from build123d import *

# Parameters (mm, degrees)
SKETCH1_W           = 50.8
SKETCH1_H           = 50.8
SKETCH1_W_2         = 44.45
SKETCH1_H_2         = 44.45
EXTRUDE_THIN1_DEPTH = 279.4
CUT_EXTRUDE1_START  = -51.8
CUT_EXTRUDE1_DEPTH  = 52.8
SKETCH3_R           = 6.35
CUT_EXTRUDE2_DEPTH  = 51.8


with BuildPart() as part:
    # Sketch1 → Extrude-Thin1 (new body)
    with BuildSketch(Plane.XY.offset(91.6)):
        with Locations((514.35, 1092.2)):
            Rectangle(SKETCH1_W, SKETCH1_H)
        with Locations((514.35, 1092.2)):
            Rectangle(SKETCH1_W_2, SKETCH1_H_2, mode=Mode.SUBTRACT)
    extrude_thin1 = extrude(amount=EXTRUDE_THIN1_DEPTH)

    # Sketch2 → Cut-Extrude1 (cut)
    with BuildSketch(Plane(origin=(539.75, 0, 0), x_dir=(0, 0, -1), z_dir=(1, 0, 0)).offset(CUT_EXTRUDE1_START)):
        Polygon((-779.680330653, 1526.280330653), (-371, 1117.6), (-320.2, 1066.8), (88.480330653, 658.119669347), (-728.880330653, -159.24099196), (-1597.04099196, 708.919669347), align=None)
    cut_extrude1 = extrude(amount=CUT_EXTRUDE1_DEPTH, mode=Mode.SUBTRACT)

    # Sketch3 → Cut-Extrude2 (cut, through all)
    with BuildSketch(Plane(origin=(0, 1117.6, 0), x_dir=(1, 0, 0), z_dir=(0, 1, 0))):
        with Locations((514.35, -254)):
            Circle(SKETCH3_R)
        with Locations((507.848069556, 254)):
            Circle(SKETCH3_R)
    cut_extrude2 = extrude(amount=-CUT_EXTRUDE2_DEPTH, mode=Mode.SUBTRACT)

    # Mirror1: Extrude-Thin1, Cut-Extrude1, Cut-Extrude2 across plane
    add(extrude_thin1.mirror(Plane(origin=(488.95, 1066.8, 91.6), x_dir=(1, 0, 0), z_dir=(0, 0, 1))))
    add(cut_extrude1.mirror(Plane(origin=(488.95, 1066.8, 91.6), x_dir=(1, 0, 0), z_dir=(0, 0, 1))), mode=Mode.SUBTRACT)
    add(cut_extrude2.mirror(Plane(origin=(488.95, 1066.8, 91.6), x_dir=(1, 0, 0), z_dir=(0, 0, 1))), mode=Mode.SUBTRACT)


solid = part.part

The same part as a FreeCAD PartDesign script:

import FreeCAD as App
import Part
import Sketcher

V = App.Vector
Q = App.Units.Quantity


def add_polygon(sketch, points):
    """Adds a closed chain of lines whose ends are joined by coincident constraints."""
    first, n = sketch.GeometryCount, len(points)
    for a, b in zip(points, points[1:] + points[:1]):
        sketch.addGeometry(Part.LineSegment(App.Vector(*a, 0), App.Vector(*b, 0)), False)
    for i in range(n):
        sketch.addConstraint(Sketcher.Constraint("Coincident", first + i, 2, first + (i + 1) % n, 1))

doc = App.newDocument("Part")
params = doc.addObject("Spreadsheet::Sheet", "Params")
for row, (alias, value) in enumerate([
    ("sketch1_width", "2 in"),
    ("sketch1_width2", "1.75 in"),
    ("pad1_length", "11 in"),
    ("pocket1_length", "52.8 mm"),
    ("sketch3_diameter", "0.5 in"),
], start=1):
    params.set(f"A{row}", alias)
    params.set(f"B{row}", "=" + value)
    params.setAlias(f"B{row}", alias)

body = doc.addObject("PartDesign::Body", "Body")

# Sketch on XY plane
sketch1 = body.newObject("Sketcher::SketchObject", "Sketch")
sketch1.AttachmentSupport = (doc.getObject("XY_Plane"), [""])
sketch1.MapMode = "FlatFace"
sketch1.AttachmentOffset = App.Placement(V(0, 0, 91.6), App.Rotation())
add_polygon(sketch1, [(489, 1118), (489, 1067), (540, 1067), (540, 1118)])  # lines 0-3
add_polygon(sketch1, [(537, 1070), (492, 1070), (492, 1114), (537, 1114)])  # lines 4-7
sketch1.addConstraint([
    Sketcher.Constraint("Vertical", 0),
    Sketcher.Constraint("Horizontal", 1),
    Sketcher.Constraint("Vertical", 2),
    Sketcher.Constraint("Horizontal", 3),
    Sketcher.Constraint("Horizontal", 4),
    Sketcher.Constraint("Vertical", 5),
    Sketcher.Constraint("Horizontal", 6),
    Sketcher.Constraint("Vertical", 7),
    Sketcher.Constraint("Equal", 3, 0),
    Sketcher.Constraint("Equal", 6, 5),
    Sketcher.Constraint("DistanceX", 1, 1, 1, 2, Q("2 in")),
    Sketcher.Constraint("DistanceY", -1, 1, 0, 2, Q("42 in")),
    Sketcher.Constraint("DistanceX", 4, 2, 4, 1, Q("1.75 in")),
    Sketcher.Constraint("DistanceX", -1, 1, 0, 2, Q("19.25 in")),
    Sketcher.Constraint("DistanceX", -1, 1, 4, 2, Q("19.375 in")),
    Sketcher.Constraint("DistanceY", -1, 1, 4, 2, Q("42.125 in")),
])
sketch1.setExpression("Constraints[18]", "Params.sketch1_width")
sketch1.setExpression("Constraints[20]", "Params.sketch1_width2")
pad1 = body.newObject("PartDesign::Pad", "Pad")
pad1.Profile = sketch1
pad1.setExpression("Length", "Params.pad1_length")

# Sketch on YZ plane
sketch2 = body.newObject("Sketcher::SketchObject", "Sketch001")
sketch2.AttachmentSupport = (doc.getObject("YZ_Plane"), [""])
sketch2.MapMode = "FlatFace"
sketch2.AttachmentOffset = App.Placement(V(0, 0, 487.95), App.Rotation())
add_polygon(sketch2, [(658, -88), (1526, 780), (709, 1597), (-159, 729)])  # lines 0-3
sketch2.addConstraint([
    Sketcher.Constraint("Perpendicular", 0, 1),
    Sketcher.Constraint("Perpendicular", 1, 2),
    Sketcher.Constraint("Perpendicular", 2, 3),
    Sketcher.Constraint("Angle", 0, Q("45 deg")),
    Sketcher.Constraint("DistanceY", 2, 2, 0, 2, Q("2 in")),
    Sketcher.Constraint("Distance", 0, 1227.764582),
    Sketcher.Constraint("DistanceX", -1, 1, 0, 2, 1526.280331),
    Sketcher.Constraint("DistanceY", -1, 1, 0, 2, 779.680331),
])
pocket1 = body.newObject("PartDesign::Pocket", "Pocket")
pocket1.Profile = sketch2
pocket1.setExpression("Length", "Params.pocket1_length")
pocket1.Reversed = True

# Sketch on XZ plane
sketch3 = body.newObject("Sketcher::SketchObject", "Sketch002")
sketch3.AttachmentSupport = (doc.getObject("XZ_Plane"), [""])
sketch3.MapMode = "FlatFace"
sketch3.AttachmentOffset = App.Placement(V(0, 0, -44 * 25.4), App.Rotation())
sketch3.addGeometry([
    Part.Circle(V(514, 254, 0), V(0, 0, 1), 6),
    Part.Circle(V(508, -254, 0), V(0, 0, 1), 6),
], False)
sketch3.addConstraint([
    Sketcher.Constraint("Equal", 0, 1),
    Sketcher.Constraint("Diameter", 0, Q("0.5 in")),
    Sketcher.Constraint("DistanceY", -1, 1, 0, 3, Q("10 in")),
    Sketcher.Constraint("DistanceY", 1, 3, -1, 1, Q("10 in")),
    Sketcher.Constraint("DistanceX", -1, 1, 0, 3, Q("20.25 in")),
    Sketcher.Constraint("DistanceX", -1, 1, 1, 3, 507.84807),
])
sketch3.setExpression("Constraints[1]", "Params.sketch3_diameter")
pocket2 = body.newObject("PartDesign::Pocket", "Pocket001")
pocket2.Profile = sketch3
pocket2.Type = "ThroughAll"
pocket2.Reversed = True
doc.recompute()

datumplane = body.newObject("PartDesign::Plane", "DatumPlane")
datumplane.AttachmentSupport = (doc.getObject("XY_Plane"), [""])
datumplane.MapMode = "FlatFace"
datumplane.AttachmentOffset = App.Placement(V(0, 0, 91.6), App.Rotation())
mirrored = body.newObject("PartDesign::Mirrored", "Mirrored")
mirrored.Originals = [pad1, pocket1, pocket2]
mirrored.MirrorPlane = (datumplane, [""])
body.Tip = mirrored

doc.recompute()
